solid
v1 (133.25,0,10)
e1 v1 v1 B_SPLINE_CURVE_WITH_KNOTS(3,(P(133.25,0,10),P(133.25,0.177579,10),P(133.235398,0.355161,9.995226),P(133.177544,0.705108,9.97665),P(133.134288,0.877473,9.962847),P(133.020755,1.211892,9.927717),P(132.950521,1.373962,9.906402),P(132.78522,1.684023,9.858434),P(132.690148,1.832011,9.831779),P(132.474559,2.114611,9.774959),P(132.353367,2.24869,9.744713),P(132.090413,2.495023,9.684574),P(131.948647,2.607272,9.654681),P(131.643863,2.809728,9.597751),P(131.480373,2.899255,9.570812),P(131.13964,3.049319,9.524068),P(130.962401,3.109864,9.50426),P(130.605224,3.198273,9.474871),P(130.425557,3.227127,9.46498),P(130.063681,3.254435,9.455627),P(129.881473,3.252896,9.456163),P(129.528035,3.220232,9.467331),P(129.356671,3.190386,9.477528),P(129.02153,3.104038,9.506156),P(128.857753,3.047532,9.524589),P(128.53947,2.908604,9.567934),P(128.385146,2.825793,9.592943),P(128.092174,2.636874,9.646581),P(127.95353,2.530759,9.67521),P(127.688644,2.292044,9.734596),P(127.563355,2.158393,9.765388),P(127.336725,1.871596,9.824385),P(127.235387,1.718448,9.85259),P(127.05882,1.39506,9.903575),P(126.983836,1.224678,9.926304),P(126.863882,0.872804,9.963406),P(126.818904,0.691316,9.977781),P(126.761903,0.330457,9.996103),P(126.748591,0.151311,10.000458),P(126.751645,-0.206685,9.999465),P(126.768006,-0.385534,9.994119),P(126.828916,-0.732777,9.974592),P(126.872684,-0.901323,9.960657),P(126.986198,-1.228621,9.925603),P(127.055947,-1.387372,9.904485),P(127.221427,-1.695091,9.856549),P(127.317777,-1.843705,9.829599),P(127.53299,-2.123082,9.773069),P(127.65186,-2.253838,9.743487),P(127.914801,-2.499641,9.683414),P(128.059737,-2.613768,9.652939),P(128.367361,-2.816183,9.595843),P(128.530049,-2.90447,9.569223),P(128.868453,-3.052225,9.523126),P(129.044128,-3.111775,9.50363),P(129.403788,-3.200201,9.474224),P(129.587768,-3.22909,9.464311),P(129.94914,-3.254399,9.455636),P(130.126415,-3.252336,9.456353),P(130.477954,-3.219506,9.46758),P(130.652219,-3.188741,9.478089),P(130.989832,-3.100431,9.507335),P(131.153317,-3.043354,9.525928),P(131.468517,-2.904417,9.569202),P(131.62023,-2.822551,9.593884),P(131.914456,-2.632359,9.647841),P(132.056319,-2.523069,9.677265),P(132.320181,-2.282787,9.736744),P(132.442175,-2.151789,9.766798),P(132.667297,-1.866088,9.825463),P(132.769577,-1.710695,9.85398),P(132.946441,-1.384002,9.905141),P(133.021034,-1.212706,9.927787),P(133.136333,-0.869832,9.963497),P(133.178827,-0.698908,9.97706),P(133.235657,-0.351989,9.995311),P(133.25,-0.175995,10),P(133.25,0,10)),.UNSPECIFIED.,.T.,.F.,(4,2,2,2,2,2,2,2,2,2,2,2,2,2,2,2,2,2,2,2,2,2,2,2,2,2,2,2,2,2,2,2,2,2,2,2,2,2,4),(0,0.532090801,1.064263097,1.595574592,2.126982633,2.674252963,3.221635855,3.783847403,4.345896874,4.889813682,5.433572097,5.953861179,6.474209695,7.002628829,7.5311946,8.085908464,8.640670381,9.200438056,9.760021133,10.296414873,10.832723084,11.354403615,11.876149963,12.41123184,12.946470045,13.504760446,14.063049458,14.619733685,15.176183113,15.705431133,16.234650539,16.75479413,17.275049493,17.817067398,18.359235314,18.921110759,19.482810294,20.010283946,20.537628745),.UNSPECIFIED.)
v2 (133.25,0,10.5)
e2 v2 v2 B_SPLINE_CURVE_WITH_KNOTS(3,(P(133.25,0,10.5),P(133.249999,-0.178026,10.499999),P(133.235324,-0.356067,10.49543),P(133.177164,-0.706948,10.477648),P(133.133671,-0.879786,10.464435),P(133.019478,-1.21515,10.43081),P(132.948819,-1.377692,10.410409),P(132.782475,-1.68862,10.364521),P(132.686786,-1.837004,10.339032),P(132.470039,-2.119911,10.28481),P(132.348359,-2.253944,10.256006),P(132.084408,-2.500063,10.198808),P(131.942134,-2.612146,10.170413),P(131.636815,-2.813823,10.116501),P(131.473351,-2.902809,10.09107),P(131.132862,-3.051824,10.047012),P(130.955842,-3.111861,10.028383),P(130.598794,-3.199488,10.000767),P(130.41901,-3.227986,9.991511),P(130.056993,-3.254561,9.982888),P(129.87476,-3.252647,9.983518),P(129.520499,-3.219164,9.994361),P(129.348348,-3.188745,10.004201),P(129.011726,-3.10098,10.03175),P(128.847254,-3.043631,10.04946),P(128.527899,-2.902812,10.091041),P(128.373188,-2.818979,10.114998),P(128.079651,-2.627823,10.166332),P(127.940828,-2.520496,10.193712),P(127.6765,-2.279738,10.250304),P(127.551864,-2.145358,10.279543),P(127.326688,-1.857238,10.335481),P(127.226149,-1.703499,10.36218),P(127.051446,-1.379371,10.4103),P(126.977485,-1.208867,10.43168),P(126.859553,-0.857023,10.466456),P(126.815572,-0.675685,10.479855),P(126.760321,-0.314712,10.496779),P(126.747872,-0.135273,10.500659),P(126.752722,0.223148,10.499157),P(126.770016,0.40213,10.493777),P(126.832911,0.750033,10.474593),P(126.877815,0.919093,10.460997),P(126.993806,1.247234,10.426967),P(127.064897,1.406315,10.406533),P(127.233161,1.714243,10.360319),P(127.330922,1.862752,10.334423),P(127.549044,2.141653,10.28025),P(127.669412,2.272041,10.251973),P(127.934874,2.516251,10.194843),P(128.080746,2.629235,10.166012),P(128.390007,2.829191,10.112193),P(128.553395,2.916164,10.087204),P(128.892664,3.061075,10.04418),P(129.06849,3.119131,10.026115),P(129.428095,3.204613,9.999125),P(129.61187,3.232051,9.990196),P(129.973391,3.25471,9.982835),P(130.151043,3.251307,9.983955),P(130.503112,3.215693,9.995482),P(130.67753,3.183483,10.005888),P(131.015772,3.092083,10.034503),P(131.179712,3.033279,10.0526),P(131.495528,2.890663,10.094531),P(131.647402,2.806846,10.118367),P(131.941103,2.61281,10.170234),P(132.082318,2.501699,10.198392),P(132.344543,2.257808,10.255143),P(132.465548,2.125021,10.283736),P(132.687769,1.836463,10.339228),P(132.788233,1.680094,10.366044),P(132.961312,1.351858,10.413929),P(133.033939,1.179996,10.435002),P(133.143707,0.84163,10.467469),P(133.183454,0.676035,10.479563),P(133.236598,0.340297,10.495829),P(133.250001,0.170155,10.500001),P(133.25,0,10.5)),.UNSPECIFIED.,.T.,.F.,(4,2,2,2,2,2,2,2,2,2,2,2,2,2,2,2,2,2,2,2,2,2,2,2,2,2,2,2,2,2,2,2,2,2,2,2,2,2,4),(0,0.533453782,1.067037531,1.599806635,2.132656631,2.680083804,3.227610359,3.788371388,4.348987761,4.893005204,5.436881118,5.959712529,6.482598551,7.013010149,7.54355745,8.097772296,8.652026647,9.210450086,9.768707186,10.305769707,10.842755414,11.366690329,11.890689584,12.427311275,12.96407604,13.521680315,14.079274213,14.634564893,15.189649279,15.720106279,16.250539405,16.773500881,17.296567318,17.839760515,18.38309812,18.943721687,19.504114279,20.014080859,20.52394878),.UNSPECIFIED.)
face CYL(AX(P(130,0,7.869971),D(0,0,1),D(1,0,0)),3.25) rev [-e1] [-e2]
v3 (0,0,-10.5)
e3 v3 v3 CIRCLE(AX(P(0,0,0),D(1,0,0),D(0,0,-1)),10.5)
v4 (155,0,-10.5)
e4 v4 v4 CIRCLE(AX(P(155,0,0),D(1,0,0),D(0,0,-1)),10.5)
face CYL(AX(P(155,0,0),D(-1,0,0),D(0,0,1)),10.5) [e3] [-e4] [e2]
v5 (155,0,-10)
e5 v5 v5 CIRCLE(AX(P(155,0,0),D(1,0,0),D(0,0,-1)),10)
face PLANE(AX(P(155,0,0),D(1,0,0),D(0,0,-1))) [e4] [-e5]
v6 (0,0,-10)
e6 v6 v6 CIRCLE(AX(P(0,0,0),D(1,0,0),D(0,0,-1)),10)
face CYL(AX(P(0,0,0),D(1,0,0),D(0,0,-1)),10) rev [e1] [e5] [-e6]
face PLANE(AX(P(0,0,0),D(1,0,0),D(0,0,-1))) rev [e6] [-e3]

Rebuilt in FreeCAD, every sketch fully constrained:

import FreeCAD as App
import Part
import Sketcher

V = App.Vector

doc = App.newDocument("Part")
body = doc.addObject("PartDesign::Body", "Body")

# Sketch on YZ plane
sketch1 = body.newObject("Sketcher::SketchObject", "Sketch")
sketch1.AttachmentSupport = (doc.getObject("YZ_Plane"), [""])
sketch1.MapMode = "FlatFace"
sketch1.addGeometry(Part.Circle(V(0, 0, 0), V(0, 0, 1), 10), False)
sketch1.addConstraint(Sketcher.Constraint("Coincident", 0, 3, -1, 1))
sketch1.addConstraint(Sketcher.Constraint("Diameter", 0, 21.0))
pad1 = body.newObject("PartDesign::Pad", "Pad")
pad1.Profile = sketch1
pad1.Length = 155

# Sketch on YZ plane
sketch2 = body.newObject("Sketcher::SketchObject", "Sketch001")
sketch2.AttachmentSupport = (doc.getObject("YZ_Plane"), [""])
sketch2.MapMode = "FlatFace"
sketch2.AttachmentOffset = App.Placement(V(0, 0, 155), App.Rotation())
sketch2.addGeometry(Part.Circle(V(0, 0, 0), V(0, 0, 1), 10), False)
sketch2.addConstraint(Sketcher.Constraint("Coincident", 0, 3, -1, 1))
sketch2.addConstraint(Sketcher.Constraint("Diameter", 0, 20.0))
pocket1 = body.newObject("PartDesign::Pocket", "Pocket")
pocket1.Profile = sketch2
pocket1.Length = 155

# Sketch on XY plane
sketch3 = body.newObject("Sketcher::SketchObject", "Sketch002")
sketch3.AttachmentSupport = (doc.getObject("XY_Plane"), [""])
sketch3.MapMode = "FlatFace"
sketch3.AttachmentOffset = App.Placement(V(0, 0, 10.369971), App.Rotation())
sketch3.addGeometry(Part.Circle(V(130, 0, 0), V(0, 0, 1), 3.2), False)
sketch3.addConstraint(Sketcher.Constraint("PointOnObject", 0, 3, -1))
sketch3.addConstraint(Sketcher.Constraint("Diameter", 0, 6.5))
sketch3.addConstraint(Sketcher.Constraint("DistanceX", -1, 1, 0, 3, 130.0))
pocket2 = body.newObject("PartDesign::Pocket", "Pocket001")
pocket2.Profile = sketch3
pocket2.Length = 5
pocket2.Midplane = True

doc.recompute()
